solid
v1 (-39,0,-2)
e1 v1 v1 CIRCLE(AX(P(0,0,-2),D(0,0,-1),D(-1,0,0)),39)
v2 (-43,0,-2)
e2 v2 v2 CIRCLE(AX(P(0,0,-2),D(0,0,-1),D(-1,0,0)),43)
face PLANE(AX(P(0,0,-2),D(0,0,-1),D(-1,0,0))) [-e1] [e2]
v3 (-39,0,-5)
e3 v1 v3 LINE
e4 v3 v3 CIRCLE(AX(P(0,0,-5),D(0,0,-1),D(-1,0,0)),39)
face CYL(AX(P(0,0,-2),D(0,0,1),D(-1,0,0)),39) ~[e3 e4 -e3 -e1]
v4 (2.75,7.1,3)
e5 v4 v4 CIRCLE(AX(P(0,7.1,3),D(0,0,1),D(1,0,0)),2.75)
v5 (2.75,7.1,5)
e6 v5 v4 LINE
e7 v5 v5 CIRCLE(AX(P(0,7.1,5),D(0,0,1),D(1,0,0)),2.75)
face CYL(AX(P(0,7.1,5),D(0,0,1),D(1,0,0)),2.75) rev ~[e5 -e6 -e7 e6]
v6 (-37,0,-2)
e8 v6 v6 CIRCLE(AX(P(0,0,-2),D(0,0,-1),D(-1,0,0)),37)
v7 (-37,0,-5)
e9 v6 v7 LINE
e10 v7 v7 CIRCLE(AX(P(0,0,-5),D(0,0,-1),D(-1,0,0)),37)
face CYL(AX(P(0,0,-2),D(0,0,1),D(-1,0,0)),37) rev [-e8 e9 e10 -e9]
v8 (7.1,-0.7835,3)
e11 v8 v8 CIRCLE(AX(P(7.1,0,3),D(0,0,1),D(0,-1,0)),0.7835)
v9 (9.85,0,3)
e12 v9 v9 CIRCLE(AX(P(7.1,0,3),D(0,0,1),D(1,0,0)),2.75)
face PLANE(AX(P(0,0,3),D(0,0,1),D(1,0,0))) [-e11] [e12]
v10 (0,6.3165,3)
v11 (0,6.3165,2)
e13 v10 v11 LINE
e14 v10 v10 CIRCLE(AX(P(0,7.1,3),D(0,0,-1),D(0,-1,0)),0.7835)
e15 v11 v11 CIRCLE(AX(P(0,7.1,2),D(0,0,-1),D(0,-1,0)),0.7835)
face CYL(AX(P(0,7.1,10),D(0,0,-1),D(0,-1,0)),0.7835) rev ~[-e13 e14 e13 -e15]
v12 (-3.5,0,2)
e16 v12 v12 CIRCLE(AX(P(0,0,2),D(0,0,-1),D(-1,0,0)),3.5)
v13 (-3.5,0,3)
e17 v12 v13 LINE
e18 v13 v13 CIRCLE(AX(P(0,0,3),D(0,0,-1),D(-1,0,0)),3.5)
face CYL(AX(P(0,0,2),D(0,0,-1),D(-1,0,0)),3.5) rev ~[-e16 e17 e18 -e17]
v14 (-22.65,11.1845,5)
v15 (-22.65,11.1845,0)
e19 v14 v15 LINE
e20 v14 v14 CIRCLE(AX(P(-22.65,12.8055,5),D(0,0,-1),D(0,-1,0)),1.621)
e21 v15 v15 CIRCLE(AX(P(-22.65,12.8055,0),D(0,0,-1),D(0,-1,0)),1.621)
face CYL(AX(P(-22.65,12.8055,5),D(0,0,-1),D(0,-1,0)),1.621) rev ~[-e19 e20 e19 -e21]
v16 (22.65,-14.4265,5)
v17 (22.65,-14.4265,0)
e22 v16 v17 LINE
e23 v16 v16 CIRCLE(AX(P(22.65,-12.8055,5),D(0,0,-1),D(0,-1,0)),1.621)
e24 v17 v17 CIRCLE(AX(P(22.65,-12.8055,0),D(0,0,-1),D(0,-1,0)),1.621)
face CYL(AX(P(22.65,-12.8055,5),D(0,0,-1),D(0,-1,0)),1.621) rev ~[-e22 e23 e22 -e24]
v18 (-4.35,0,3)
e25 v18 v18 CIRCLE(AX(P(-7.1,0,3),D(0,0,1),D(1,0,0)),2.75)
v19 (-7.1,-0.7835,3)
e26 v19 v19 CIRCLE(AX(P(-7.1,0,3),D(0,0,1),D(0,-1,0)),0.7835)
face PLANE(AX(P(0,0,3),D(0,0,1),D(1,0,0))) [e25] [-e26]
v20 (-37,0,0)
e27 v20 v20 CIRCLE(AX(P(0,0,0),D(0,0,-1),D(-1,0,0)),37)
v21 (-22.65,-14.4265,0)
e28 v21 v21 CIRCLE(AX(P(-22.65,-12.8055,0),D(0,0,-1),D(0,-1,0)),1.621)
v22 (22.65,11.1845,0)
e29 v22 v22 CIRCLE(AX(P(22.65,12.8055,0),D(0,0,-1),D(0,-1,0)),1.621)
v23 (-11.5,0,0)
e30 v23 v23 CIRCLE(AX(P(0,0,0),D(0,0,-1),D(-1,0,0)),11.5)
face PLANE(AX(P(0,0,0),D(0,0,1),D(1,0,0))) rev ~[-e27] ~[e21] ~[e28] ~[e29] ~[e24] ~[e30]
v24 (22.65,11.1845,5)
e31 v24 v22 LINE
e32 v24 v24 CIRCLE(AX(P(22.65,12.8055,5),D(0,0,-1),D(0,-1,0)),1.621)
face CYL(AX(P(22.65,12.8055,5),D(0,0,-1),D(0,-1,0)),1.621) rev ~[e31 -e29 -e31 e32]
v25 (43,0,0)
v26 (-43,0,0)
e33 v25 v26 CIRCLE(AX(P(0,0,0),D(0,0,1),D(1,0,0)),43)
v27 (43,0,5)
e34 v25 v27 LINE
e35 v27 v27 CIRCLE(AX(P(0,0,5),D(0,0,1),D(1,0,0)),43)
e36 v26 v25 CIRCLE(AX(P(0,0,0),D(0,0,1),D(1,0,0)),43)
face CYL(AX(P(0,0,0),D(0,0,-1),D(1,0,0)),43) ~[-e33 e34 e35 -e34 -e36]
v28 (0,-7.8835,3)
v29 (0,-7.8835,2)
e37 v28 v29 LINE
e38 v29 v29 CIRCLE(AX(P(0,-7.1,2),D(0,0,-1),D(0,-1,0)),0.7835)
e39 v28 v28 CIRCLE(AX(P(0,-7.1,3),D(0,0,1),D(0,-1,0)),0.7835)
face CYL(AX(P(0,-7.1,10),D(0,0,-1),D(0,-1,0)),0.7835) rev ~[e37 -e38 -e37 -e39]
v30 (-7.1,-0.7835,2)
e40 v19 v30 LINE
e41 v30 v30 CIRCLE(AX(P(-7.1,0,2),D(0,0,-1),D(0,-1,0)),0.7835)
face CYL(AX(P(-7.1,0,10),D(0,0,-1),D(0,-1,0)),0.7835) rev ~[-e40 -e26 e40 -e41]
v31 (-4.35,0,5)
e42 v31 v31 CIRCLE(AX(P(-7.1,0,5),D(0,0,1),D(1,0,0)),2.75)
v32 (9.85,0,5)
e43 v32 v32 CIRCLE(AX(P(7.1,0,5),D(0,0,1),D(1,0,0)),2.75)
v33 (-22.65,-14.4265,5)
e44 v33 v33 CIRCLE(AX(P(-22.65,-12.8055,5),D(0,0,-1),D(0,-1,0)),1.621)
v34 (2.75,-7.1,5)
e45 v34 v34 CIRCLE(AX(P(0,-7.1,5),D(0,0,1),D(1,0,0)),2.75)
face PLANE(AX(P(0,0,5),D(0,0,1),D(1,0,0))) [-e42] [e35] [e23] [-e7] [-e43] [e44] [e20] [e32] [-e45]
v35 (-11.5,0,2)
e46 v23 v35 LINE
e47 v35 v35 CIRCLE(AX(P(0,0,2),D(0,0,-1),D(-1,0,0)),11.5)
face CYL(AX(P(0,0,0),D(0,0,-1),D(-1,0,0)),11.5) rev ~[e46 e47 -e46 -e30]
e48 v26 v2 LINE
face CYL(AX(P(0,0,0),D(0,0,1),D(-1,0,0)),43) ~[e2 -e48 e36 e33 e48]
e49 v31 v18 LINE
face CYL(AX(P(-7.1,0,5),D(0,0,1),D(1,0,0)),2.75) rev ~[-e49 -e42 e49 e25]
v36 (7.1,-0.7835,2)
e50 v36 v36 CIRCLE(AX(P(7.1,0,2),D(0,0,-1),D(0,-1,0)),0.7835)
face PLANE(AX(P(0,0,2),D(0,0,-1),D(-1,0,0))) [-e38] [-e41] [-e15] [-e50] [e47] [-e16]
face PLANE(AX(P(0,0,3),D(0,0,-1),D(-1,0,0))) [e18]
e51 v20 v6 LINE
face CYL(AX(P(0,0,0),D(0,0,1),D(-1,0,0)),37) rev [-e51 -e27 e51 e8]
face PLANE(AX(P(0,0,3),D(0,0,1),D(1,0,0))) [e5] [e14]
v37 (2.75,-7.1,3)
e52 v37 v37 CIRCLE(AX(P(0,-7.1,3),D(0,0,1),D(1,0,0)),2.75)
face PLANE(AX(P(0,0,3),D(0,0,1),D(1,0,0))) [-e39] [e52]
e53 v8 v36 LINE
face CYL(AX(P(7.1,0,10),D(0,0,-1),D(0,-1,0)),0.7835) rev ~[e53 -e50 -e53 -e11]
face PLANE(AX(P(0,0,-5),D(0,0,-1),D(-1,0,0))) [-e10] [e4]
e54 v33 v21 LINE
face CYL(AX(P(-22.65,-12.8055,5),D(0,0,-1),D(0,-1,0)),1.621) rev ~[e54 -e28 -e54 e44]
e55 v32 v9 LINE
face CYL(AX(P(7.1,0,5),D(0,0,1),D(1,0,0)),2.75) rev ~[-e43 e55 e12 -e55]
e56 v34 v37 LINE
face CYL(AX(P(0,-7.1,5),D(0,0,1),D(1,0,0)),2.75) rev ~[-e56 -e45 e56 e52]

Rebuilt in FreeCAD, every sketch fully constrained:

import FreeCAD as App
import Part
import Sketcher

V = App.Vector
Q = App.Units.Quantity

doc = App.newDocument("Part")
params = doc.addObject("Spreadsheet::Sheet", "Params")
for row, (alias, value) in enumerate([
    ("sketch1_diameter", "86 mm"),
    ("pad1_length", "10 mm"),
    ("hole_diameter", "1.567 mm"),
    ("sketch3_diameter", "23 mm"),
    ("pocket1_length", "2 mm"),
    ("sketch4_diameter", "7 mm"),
    ("pocket2_length", "1 mm"),
    ("sketch5_diameter", "86 mm"),
    ("pocket3_length", "5 mm"),
    ("sketch6_diameter", "5.5 mm"),
    ("pocket4_length", "2 mm"),
    ("sketch7_diameter", "86 mm"),
    ("sketch7_diameter2", "74 mm"),
    ("pad2_length", "2 mm"),
    ("sketch8_diameter", "78 mm"),
    ("sketch8_diameter2", "74 mm"),
    ("pad3_length", "3 mm"),
    ("hole2_diameter", "3.242 mm"),
], start=1):
    params.set(f"A{row}", alias)
    params.set(f"B{row}", "=" + value)
    params.setAlias(f"B{row}", alias)

body = doc.addObject("PartDesign::Body", "Body")

# Sketch on XY plane
sketch1 = body.newObject("Sketcher::SketchObject", "Sketch")
sketch1.AttachmentSupport = (doc.getObject("XY_Plane"), [""])
sketch1.MapMode = "FlatFace"
sketch1.addGeometry(Part.Circle(V(0, 0, 0), V(0, 0, 1), 43), False)
sketch1.addConstraint(Sketcher.Constraint("Coincident", 0, 3, -1, 1))
sketch1.addConstraint(Sketcher.Constraint("Diameter", 0, Q("86 mm")))
sketch1.setExpression("Constraints[1]", "Params.sketch1_diameter")
pad1 = body.newObject("PartDesign::Pad", "Pad")
pad1.Profile = sketch1
pad1.setExpression("Length", "Params.pad1_length")

# Sketch on XY plane
sketch2 = body.newObject("Sketcher::SketchObject", "Sketch001")
sketch2.AttachmentSupport = (doc.getObject("XY_Plane"), [""])
sketch2.MapMode = "FlatFace"
sketch2.AttachmentOffset = App.Placement(V(0, 0, 10), App.Rotation())
sketch2.addGeometry(Part.Circle(V(7.1, 0, 0), V(0, 0, 1), 0.8), False)
sketch2.addGeometry(Part.Circle(V(0, 7.1, 0), V(0, 0, 1), 0.8), False)
sketch2.addGeometry(Part.Circle(V(-7.1, 0, 0), V(0, 0, 1), 0.8), False)
sketch2.addGeometry(Part.Circle(V(0, -7.1, 0), V(0, 0, 1), 0.8), False)
sketch2.addConstraint(Sketcher.Constraint("Equal", 0, 1))
sketch2.addConstraint(Sketcher.Constraint("Equal", 1, 2))
sketch2.addConstraint(Sketcher.Constraint("Equal", 2, 3))
sketch2.addConstraint(Sketcher.Constraint("Symmetric", 0, 3, 2, 3, -1, 1))
sketch2.addConstraint(Sketcher.Constraint("Symmetric", 1, 3, 3, 3, -1, 1))
sketch2.addConstraint(Sketcher.Constraint("PointOnObject", 0, 3, -1))
sketch2.addConstraint(Sketcher.Constraint("PointOnObject", 1, 3, -2))
sketch2.addConstraint(Sketcher.Constraint("Diameter", 0, Q("1.567 mm")))
sketch2.addConstraint(Sketcher.Constraint("DistanceX", -1, 1, 0, 3, Q("7.1 mm")))
sketch2.addConstraint(Sketcher.Constraint("DistanceY", -1, 1, 1, 3, Q("7.1 mm")))
doc.recompute()
hole = body.newObject("PartDesign::Hole", "Hole")
hole.Profile = sketch2
hole.ThreadType = "None"
hole.setExpression("Diameter", "Params.hole_diameter")
hole.DepthType = "ThroughAll"

# Sketch on XY plane
sketch3 = body.newObject("Sketcher::SketchObject", "Sketch002")
sketch3.AttachmentSupport = (doc.getObject("XY_Plane"), [""])
sketch3.MapMode = "FlatFace"
sketch3.addGeometry(Part.Circle(V(0, 0, 0), V(0, 0, 1), 12), False)
sketch3.addConstraint(Sketcher.Constraint("Coincident", 0, 3, -1, 1))
sketch3.addConstraint(Sketcher.Constraint("Diameter", 0, Q("23 mm")))
sketch3.setExpression("Constraints[1]", "Params.sketch3_diameter")
pocket1 = body.newObject("PartDesign::Pocket", "Pocket")
pocket1.Profile = sketch3
pocket1.setExpression("Length", "Params.pocket1_length")
pocket1.Reversed = True

# Sketch on XY plane
sketch4 = body.newObject("Sketcher::SketchObject", "Sketch003")
sketch4.AttachmentSupport = (doc.getObject("XY_Plane"), [""])
sketch4.MapMode = "FlatFace"
sketch4.AttachmentOffset = App.Placement(V(0, 0, 2), App.Rotation())
sketch4.addGeometry(Part.Circle(V(0, 0, 0), V(0, 0, 1), 3.5), False)
sketch4.addConstraint(Sketcher.Constraint("Coincident", 0, 3, -1, 1))
sketch4.addConstraint(Sketcher.Constraint("Diameter", 0, Q("7 mm")))
sketch4.setExpression("Constraints[1]", "Params.sketch4_diameter")
pocket2 = body.newObject("PartDesign::Pocket", "Pocket001")
pocket2.Profile = sketch4
pocket2.setExpression("Length", "Params.pocket2_length")
pocket2.Reversed = True

# Sketch on XY plane
sketch5 = body.newObject("Sketcher::SketchObject", "Sketch004")
sketch5.AttachmentSupport = (doc.getObject("XY_Plane"), [""])
sketch5.MapMode = "FlatFace"
sketch5.AttachmentOffset = App.Placement(V(0, 0, 10), App.Rotation())
sketch5.addGeometry(Part.Circle(V(0, 0, 0), V(0, 0, 1), 43), False)
sketch5.addGeometry(Part.Circle(V(0, -7.1, 0), V(0, 0, 1), 0.8), False)
sketch5.addGeometry(Part.Circle(V(-7.1, 0, 0), V(0, 0, 1), 0.8), False)
sketch5.addGeometry(Part.Circle(V(7.1, 0, 0), V(0, 0, 1), 0.8), False)
sketch5.addGeometry(Part.Circle(V(0, 7.1, 0), V(0, 0, 1), 0.8), False)
sketch5.addConstraint(Sketcher.Constraint("Coincident", 0, 3, -1, 1))
sketch5.addConstraint(Sketcher.Constraint("Equal", 1, 2))
sketch5.addConstraint(Sketcher.Constraint("Equal", 2, 3))
sketch5.addConstraint(Sketcher.Constraint("Equal", 3, 4))
sketch5.addConstraint(Sketcher.Constraint("Symmetric", 2, 3, 3, 3, -1, 1))
sketch5.addConstraint(Sketcher.Constraint("Symmetric", 1, 3, 4, 3, -1, 1))
sketch5.addConstraint(Sketcher.Constraint("PointOnObject", 1, 3, -2))
sketch5.addConstraint(Sketcher.Constraint("PointOnObject", 2, 3, -1))
sketch5.addConstraint(Sketcher.Constraint("Diameter", 0, Q("86 mm")))
sketch5.addConstraint(Sketcher.Constraint("Diameter", 1, Q("1.567 mm")))
sketch5.addConstraint(Sketcher.Constraint("DistanceY", 1, 3, -1, 1, Q("7.1 mm")))
sketch5.addConstraint(Sketcher.Constraint("DistanceX", 2, 3, -1, 1, Q("7.1 mm")))
sketch5.setExpression("Constraints[8]", "Params.sketch5_diameter")
pocket3 = body.newObject("PartDesign::Pocket", "Pocket002")
pocket3.Profile = sketch5
pocket3.setExpression("Length", "Params.pocket3_length")

# Sketch on XY plane
sketch6 = body.newObject("Sketcher::SketchObject", "Sketch005")
sketch6.AttachmentSupport = (doc.getObject("XY_Plane"), [""])
sketch6.MapMode = "FlatFace"
sketch6.AttachmentOffset = App.Placement(V(0, 0, 5), App.Rotation())
sketch6.addGeometry(Part.Circle(V(0, 7.1, 0), V(0, 0, 1), 2.8), False)
sketch6.addGeometry(Part.Circle(V(0, -7.1, 0), V(0, 0, 1), 2.8), False)
sketch6.addGeometry(Part.Circle(V(0, -7.1, 0), V(0, 0, 1), 0.8), False)
sketch6.addGeometry(Part.Circle(V(-7.1, 0, 0), V(0, 0, 1), 2.8), False)
sketch6.addGeometry(Part.Circle(V(-7.1, 0, 0), V(0, 0, 1), 0.8), False)
sketch6.addGeometry(Part.Circle(V(7.1, 0, 0), V(0, 0, 1), 2.8), False)
sketch6.addGeometry(Part.Circle(V(7.1, 0, 0), V(0, 0, 1), 0.8), False)
sketch6.addConstraint(Sketcher.Constraint("Coincident", 2, 3, 1, 3))
sketch6.addConstraint(Sketcher.Constraint("Coincident", 4, 3, 3, 3))
sketch6.addConstraint(Sketcher.Constraint("Coincident", 6, 3, 5, 3))
sketch6.addConstraint(Sketcher.Constraint("Equal", 0, 1))
sketch6.addConstraint(Sketcher.Constraint("Equal", 1, 3))
sketch6.addConstraint(Sketcher.Constraint("Equal", 2, 4))
sketch6.addConstraint(Sketcher.Constraint("Equal", 3, 5))
sketch6.addConstraint(Sketcher.Constraint("Equal", 4, 6))
sketch6.addConstraint(Sketcher.Constraint("Symmetric", 0, 3, 1, 3, -1, 1))
sketch6.addConstraint(Sketcher.Constraint("Symmetric", 3, 3, 5, 3, -1, 1))
sketch6.addConstraint(Sketcher.Constraint("PointOnObject", 0, 3, -2))
sketch6.addConstraint(Sketcher.Constraint("PointOnObject", 3, 3, -1))
sketch6.addConstraint(Sketcher.Constraint("Diameter", 0, Q("5.5 mm")))
sketch6.addConstraint(Sketcher.Constraint("Diameter", 2, Q("1.567 mm")))
sketch6.addConstraint(Sketcher.Constraint("DistanceY", -1, 1, 0, 3, Q("7.1 mm")))
sketch6.addConstraint(Sketcher.Constraint("DistanceX", 3, 3, -1, 1, Q("7.1 mm")))
sketch6.setExpression("Constraints[12]", "Params.sketch6_diameter")
pocket4 = body.newObject("PartDesign::Pocket", "Pocket003")
pocket4.Profile = sketch6
pocket4.setExpression("Length", "Params.pocket4_length")

# Sketch on XY plane
sketch7 = body.newObject("Sketcher::SketchObject", "Sketch006")
sketch7.AttachmentSupport = (doc.getObject("XY_Plane"), [""])
sketch7.MapMode = "FlatFace"
sketch7.addGeometry(Part.Circle(V(0, 0, 0), V(0, 0, 1), 43), False)
sketch7.addGeometry(Part.Circle(V(0, 0, 0), V(0, 0, 1), 37), False)
sketch7.addConstraint(Sketcher.Constraint("Coincident", 0, 3, -1, 1))
sketch7.addConstraint(Sketcher.Constraint("Coincident", 1, 3, -1, 1))
sketch7.addConstraint(Sketcher.Constraint("Diameter", 0, Q("86 mm")))
sketch7.addConstraint(Sketcher.Constraint("Diameter", 1, Q("74 mm")))
sketch7.setExpression("Constraints[2]", "Params.sketch7_diameter")
sketch7.setExpression("Constraints[3]", "Params.sketch7_diameter2")
pad2 = body.newObject("PartDesign::Pad", "Pad001")
pad2.Profile = sketch7
pad2.setExpression("Length", "Params.pad2_length")
pad2.Reversed = True

# Sketch on XY plane
sketch8 = body.newObject("Sketcher::SketchObject", "Sketch007")
sketch8.AttachmentSupport = (doc.getObject("XY_Plane"), [""])
sketch8.MapMode = "FlatFace"
sketch8.AttachmentOffset = App.Placement(V(0, 0, -2), App.Rotation())
sketch8.addGeometry(Part.Circle(V(0, 0, 0), V(0, 0, 1), 39), False)
sketch8.addGeometry(Part.Circle(V(0, 0, 0), V(0, 0, 1), 37), False)
sketch8.addConstraint(Sketcher.Constraint("Coincident", 0, 3, -1, 1))
sketch8.addConstraint(Sketcher.Constraint("Coincident", 1, 3, -1, 1))
sketch8.addConstraint(Sketcher.Constraint("Diameter", 0, Q("78 mm")))
sketch8.addConstraint(Sketcher.Constraint("Diameter", 1, Q("74 mm")))
sketch8.setExpression("Constraints[2]", "Params.sketch8_diameter")
sketch8.setExpression("Constraints[3]", "Params.sketch8_diameter2")
pad3 = body.newObject("PartDesign::Pad", "Pad002")
pad3.Profile = sketch8
pad3.setExpression("Length", "Params.pad3_length")
pad3.Reversed = True

# Sketch on XY plane
sketch9 = body.newObject("Sketcher::SketchObject", "Sketch008")
sketch9.AttachmentSupport = (doc.getObject("XY_Plane"), [""])
sketch9.MapMode = "FlatFace"
sketch9.AttachmentOffset = App.Placement(V(0, 0, 5), App.Rotation())
sketch9.addGeometry(Part.Circle(V(-22.6, 12.8, 0), V(0, 0, 1), 1.6), False)
sketch9.addGeometry(Part.Circle(V(-22.6, -12.8, 0), V(0, 0, 1), 1.6), False)
sketch9.addGeometry(Part.Circle(V(22.6, 12.8, 0), V(0, 0, 1), 1.6), False)
sketch9.addGeometry(Part.Circle(V(22.6, -12.8, 0), V(0, 0, 1), 1.6), False)
sketch9.addConstraint(Sketcher.Constraint("Equal", 0, 1))
sketch9.addConstraint(Sketcher.Constraint("Equal", 1, 2))
sketch9.addConstraint(Sketcher.Constraint("Equal", 2, 3))
sketch9.addConstraint(Sketcher.Constraint("Symmetric", 1, 3, 2, 3, -1, 1))
sketch9.addConstraint(Sketcher.Constraint("Symmetric", 0, 3, 3, 3, -1, 1))
sketch9.addConstraint(Sketcher.Constraint("Symmetric", 0, 3, 2, 3, -2))
sketch9.addConstraint(Sketcher.Constraint("Diameter", 0, Q("3.242 mm")))
sketch9.addConstraint(Sketcher.Constraint("DistanceX", 0, 3, 2, 3, Q("45.3 mm")))
sketch9.addConstraint(Sketcher.Constraint("DistanceY", 1, 3, 0, 3, Q("25.611 mm")))
doc.recompute()
hole2 = body.newObject("PartDesign::Hole", "Hole001")
hole2.Profile = sketch9
hole2.ThreadType = "None"
hole2.setExpression("Diameter", "Params.hole2_diameter")
hole2.DepthType = "ThroughAll"

doc.recompute()
